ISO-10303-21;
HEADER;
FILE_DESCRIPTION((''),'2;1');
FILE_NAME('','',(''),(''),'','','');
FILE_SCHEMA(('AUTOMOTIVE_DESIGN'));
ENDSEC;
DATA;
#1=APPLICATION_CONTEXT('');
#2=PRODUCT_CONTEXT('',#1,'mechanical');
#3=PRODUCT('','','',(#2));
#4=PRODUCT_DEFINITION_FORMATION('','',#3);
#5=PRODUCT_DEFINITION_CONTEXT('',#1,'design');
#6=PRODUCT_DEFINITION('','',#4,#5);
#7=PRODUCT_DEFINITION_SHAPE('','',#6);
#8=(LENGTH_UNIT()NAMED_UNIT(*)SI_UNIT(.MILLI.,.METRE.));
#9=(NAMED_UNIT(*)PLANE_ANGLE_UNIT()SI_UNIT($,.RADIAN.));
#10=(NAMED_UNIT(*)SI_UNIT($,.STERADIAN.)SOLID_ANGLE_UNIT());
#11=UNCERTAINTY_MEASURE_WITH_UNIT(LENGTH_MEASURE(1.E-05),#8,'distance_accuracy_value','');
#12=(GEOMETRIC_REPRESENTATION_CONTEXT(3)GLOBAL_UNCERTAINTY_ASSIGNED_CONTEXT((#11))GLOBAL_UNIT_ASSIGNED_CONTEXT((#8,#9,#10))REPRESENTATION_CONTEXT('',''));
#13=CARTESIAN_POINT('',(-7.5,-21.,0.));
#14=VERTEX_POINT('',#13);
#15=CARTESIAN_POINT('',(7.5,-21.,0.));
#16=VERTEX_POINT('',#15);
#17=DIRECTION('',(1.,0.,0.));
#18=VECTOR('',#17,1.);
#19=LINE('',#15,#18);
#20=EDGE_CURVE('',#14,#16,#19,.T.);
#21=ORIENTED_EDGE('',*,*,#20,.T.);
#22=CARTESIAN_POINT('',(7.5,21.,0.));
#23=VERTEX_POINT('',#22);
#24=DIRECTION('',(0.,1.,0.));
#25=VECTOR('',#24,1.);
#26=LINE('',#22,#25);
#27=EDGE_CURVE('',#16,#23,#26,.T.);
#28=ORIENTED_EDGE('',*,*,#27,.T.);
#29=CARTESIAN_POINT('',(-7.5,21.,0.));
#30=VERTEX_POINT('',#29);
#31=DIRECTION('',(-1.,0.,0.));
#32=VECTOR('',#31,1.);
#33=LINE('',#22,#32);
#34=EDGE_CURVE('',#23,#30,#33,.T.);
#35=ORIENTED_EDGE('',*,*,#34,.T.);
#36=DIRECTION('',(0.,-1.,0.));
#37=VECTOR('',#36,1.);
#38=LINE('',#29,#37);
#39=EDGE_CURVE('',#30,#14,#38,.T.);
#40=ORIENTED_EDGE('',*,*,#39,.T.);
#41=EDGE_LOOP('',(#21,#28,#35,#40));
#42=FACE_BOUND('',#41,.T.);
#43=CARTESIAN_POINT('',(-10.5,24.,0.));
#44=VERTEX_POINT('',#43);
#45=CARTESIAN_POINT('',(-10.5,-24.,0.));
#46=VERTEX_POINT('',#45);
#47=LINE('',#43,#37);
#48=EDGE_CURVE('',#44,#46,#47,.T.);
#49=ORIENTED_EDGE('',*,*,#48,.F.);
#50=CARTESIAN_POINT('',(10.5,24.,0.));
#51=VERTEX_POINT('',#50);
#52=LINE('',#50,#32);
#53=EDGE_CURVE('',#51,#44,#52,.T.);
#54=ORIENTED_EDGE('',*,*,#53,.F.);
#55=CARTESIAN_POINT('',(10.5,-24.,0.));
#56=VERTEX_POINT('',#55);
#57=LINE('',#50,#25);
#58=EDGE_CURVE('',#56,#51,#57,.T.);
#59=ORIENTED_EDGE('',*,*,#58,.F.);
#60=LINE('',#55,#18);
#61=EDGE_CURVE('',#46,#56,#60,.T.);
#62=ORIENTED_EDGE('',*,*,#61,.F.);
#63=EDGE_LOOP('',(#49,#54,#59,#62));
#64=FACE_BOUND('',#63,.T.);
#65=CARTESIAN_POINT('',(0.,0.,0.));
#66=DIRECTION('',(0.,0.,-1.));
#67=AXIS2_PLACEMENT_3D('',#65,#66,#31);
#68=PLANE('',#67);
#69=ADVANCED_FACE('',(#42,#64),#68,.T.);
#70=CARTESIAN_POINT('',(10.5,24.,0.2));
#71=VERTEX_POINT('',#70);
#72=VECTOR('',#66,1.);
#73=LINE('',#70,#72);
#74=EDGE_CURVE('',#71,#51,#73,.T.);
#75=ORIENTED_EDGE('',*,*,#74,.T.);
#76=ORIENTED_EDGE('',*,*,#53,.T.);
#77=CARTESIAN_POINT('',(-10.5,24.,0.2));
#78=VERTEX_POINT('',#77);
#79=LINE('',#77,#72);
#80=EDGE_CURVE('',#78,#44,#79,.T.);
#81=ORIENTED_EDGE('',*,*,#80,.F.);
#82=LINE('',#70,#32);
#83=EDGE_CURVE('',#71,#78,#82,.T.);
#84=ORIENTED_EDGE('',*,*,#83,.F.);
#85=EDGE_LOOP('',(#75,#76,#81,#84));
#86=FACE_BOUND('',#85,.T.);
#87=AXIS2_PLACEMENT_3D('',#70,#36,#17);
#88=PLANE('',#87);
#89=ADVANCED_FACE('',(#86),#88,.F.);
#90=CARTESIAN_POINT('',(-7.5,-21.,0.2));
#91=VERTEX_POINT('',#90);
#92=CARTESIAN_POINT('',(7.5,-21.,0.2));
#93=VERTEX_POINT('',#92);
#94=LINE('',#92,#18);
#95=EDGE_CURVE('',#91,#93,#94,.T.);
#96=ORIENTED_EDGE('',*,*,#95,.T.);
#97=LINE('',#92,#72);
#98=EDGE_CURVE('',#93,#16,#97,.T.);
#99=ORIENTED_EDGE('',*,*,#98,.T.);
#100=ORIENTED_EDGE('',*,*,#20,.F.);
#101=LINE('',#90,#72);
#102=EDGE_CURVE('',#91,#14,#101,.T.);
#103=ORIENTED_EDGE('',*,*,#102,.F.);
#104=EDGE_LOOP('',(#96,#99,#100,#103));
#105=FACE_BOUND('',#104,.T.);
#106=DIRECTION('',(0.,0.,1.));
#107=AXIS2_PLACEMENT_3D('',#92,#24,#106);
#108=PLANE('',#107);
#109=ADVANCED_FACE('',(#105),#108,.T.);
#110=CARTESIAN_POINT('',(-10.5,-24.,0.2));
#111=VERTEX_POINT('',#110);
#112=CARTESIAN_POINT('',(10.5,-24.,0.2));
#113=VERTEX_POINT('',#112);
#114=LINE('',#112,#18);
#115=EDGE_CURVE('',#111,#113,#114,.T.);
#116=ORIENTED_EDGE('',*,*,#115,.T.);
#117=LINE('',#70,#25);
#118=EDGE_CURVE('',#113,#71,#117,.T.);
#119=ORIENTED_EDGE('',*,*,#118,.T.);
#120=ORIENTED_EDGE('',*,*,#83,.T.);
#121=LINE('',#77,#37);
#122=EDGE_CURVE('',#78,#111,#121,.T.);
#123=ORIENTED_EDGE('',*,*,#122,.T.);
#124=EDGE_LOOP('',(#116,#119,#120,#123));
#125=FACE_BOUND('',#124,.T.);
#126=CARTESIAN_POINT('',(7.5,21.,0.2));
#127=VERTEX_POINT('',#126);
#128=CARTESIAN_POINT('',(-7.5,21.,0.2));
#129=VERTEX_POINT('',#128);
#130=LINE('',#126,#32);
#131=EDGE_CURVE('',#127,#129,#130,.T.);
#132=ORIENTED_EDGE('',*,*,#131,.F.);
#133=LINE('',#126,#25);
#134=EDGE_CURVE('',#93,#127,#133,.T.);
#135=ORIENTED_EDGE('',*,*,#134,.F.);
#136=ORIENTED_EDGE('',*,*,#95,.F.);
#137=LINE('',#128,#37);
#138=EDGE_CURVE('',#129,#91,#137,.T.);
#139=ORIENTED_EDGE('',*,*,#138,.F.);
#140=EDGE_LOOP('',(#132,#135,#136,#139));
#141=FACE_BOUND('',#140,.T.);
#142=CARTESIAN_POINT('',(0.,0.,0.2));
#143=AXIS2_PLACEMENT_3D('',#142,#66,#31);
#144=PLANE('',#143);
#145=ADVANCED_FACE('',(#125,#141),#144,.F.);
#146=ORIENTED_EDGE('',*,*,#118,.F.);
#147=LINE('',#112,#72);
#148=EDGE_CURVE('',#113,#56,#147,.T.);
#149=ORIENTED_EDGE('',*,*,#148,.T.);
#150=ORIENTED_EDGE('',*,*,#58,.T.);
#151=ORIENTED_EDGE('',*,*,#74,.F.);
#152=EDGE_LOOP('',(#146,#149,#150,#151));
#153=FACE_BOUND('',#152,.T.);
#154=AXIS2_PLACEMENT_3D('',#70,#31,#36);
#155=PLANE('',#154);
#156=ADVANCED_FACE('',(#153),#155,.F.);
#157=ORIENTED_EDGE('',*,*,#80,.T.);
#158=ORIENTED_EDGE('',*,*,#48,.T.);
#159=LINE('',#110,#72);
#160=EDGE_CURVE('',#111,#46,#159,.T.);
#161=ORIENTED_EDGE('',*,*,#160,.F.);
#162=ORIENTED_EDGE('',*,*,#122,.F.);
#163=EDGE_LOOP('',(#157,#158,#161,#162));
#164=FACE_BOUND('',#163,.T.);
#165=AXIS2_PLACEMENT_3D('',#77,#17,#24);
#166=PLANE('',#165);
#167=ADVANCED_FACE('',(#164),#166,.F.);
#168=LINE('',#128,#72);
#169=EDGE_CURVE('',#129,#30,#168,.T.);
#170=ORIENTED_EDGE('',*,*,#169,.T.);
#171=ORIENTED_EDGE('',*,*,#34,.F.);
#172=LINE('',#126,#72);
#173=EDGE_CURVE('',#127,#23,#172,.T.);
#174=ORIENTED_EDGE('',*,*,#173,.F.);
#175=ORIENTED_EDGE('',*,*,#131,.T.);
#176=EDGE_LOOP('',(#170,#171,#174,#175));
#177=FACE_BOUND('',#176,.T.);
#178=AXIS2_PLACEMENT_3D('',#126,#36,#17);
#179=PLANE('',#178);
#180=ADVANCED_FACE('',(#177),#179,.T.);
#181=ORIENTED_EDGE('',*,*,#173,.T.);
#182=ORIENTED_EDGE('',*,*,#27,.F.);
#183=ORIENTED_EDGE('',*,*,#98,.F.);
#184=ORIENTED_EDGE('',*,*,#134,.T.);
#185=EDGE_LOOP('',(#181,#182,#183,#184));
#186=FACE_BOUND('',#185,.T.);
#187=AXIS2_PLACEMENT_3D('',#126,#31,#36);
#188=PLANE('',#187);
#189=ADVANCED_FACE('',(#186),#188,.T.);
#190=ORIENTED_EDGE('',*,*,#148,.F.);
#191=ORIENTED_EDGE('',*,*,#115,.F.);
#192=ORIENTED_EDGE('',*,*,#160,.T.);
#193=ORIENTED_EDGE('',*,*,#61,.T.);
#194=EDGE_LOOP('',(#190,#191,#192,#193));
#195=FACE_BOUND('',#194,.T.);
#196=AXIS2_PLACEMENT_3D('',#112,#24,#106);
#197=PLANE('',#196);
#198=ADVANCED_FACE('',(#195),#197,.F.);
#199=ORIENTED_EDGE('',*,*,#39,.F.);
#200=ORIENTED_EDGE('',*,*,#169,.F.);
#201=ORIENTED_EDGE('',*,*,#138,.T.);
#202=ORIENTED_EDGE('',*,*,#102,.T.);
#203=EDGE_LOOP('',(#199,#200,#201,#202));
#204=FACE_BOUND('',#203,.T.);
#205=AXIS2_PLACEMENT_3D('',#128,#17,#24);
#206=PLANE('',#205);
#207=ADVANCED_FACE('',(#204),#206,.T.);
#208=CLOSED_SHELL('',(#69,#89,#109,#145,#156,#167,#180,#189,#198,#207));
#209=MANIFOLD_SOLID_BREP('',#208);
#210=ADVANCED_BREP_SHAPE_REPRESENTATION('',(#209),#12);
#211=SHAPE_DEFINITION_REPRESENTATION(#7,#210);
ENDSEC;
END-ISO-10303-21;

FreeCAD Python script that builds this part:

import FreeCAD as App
import Part
import Sketcher

doc = App.newDocument("Part")
params = doc.addObject("Spreadsheet::Sheet", "Params")
for row, (alias, value) in enumerate([
    ("sketch1_width", "21 mm"),
    ("sketch1_width2", "15 mm"),
    ("sketch1_height", "48 mm"),
    ("sketch1_height2", "42 mm"),
    ("pad1_length", "0.2 mm"),
], start=1):
    params.set(f"A{row}", alias)
    params.set(f"B{row}", "=" + value)
    params.setAlias(f"B{row}", alias)

body = doc.addObject("PartDesign::Body", "Body")

sketch1 = doc.addObject("Sketcher::SketchObject", "Sketch")
body.addObject(sketch1)
sketch1.AttachmentSupport = (doc.XY_Plane, [""])
sketch1.MapMode = "FlatFace"
sketch1.addGeometry(Part.LineSegment(App.Vector(-10, 24, 0), App.Vector(-10, -24, 0)), False)
sketch1.addGeometry(Part.LineSegment(App.Vector(-10, -24, 0), App.Vector(10, -24, 0)), False)
sketch1.addGeometry(Part.LineSegment(App.Vector(10, -24, 0), App.Vector(10, 24, 0)), False)
sketch1.addGeometry(Part.LineSegment(App.Vector(10, 24, 0), App.Vector(-10, 24, 0)), False)
sketch1.addGeometry(Part.LineSegment(App.Vector(8, -21, 0), App.Vector(-8, -21, 0)), False)
sketch1.addGeometry(Part.LineSegment(App.Vector(-8, -21, 0), App.Vector(-8, 21, 0)), False)
sketch1.addGeometry(Part.LineSegment(App.Vector(-8, 21, 0), App.Vector(8, 21, 0)), False)
sketch1.addGeometry(Part.LineSegment(App.Vector(8, 21, 0), App.Vector(8, -21, 0)), False)
sketch1.addConstraint(Sketcher.Constraint("Coincident", 0, 2, 1, 1))
sketch1.addConstraint(Sketcher.Constraint("Coincident", 1, 2, 2, 1))
sketch1.addConstraint(Sketcher.Constraint("Coincident", 2, 2, 3, 1))
sketch1.addConstraint(Sketcher.Constraint("Coincident", 3, 2, 0, 1))
sketch1.addConstraint(Sketcher.Constraint("Coincident", 4, 2, 5, 1))
sketch1.addConstraint(Sketcher.Constraint("Coincident", 5, 2, 6, 1))
sketch1.addConstraint(Sketcher.Constraint("Coincident", 6, 2, 7, 1))
sketch1.addConstraint(Sketcher.Constraint("Coincident", 7, 2, 4, 1))
sketch1.addConstraint(Sketcher.Constraint("Vertical", 0))
sketch1.addConstraint(Sketcher.Constraint("Horizontal", 1))
sketch1.addConstraint(Sketcher.Constraint("Vertical", 2))
sketch1.addConstraint(Sketcher.Constraint("Horizontal", 3))
sketch1.addConstraint(Sketcher.Constraint("Horizontal", 4))
sketch1.addConstraint(Sketcher.Constraint("Vertical", 5))
sketch1.addConstraint(Sketcher.Constraint("Horizontal", 6))
sketch1.addConstraint(Sketcher.Constraint("Vertical", 7))
sketch1.addConstraint(Sketcher.Constraint("Symmetric", 0, 2, 2, 2, -1, 1))
sketch1.addConstraint(Sketcher.Constraint("Symmetric", 4, 2, 6, 2, -1, 1))
sketch1.addConstraint(Sketcher.Constraint("DistanceX", 1, 1, 1, 2, 21.0))
sketch1.addConstraint(Sketcher.Constraint("DistanceX", 4, 2, 4, 1, 15.0))
sketch1.addConstraint(Sketcher.Constraint("DistanceY", 0, 2, 0, 1, 48.0))
sketch1.addConstraint(Sketcher.Constraint("DistanceY", 5, 1, 5, 2, 42.0))
sketch1.setExpression("Constraints[18]", "Params.sketch1_width")
sketch1.setExpression("Constraints[19]", "Params.sketch1_width2")
sketch1.setExpression("Constraints[20]", "Params.sketch1_height")
sketch1.setExpression("Constraints[21]", "Params.sketch1_height2")
pad1 = doc.addObject("PartDesign::Pad", "Pad")
body.addObject(pad1)
pad1.Profile = sketch1
pad1.setExpression("Length", "Params.pad1_length")

doc.recompute()
